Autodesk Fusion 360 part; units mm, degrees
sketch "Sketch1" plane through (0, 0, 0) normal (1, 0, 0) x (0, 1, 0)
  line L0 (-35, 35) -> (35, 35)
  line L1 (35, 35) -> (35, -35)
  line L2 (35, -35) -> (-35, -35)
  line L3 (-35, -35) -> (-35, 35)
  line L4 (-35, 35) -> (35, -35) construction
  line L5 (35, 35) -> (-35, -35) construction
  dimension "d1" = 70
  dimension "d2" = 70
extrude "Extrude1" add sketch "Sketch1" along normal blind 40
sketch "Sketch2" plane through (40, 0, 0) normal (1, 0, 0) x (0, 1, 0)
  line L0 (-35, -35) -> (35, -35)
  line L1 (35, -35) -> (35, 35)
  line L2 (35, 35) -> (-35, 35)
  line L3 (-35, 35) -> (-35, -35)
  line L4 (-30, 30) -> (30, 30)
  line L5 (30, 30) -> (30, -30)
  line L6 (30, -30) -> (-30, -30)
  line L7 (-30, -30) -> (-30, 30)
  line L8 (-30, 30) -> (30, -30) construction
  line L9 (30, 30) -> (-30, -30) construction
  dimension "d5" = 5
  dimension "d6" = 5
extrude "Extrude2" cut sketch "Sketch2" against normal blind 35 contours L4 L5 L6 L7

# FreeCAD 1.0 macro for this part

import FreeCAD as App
import Part
import Sketcher

V = App.Vector


def add_polygon(sketch, points):
    """Adds a closed chain of lines whose ends are joined by coincident constraints."""
    first, n = sketch.GeometryCount, len(points)
    for a, b in zip(points, points[1:] + points[:1]):
        sketch.addGeometry(Part.LineSegment(App.Vector(*a, 0), App.Vector(*b, 0)), False)
    for i in range(n):
        sketch.addConstraint(Sketcher.Constraint("Coincident", first + i, 2, first + (i + 1) % n, 1))

doc = App.newDocument("Part")
body = doc.addObject("PartDesign::Body", "Body")

sketch1 = doc.addObject("Sketcher::SketchObject", "Sketch")
body.addObject(sketch1)
sketch1.AttachmentSupport = (doc.YZ_Plane, [""])
sketch1.MapMode = "FlatFace"
add_polygon(sketch1, [(35, 35), (-35, 35), (-35, -35), (35, -35)])
sketch1.addConstraint([
    Sketcher.Constraint("Horizontal", 0),
    Sketcher.Constraint("Vertical", 1),
    Sketcher.Constraint("Horizontal", 2),
    Sketcher.Constraint("Vertical", 3),
    Sketcher.Constraint("Symmetric", 0, 2, 2, 2, -1, 1),
    Sketcher.Constraint("Equal", 2, 1),
    Sketcher.Constraint("DistanceX", 0, 2, 0, 1, 70.0),
])
pad1 = doc.addObject("PartDesign::Pad", "Pad")
body.addObject(pad1)
pad1.Profile = sketch1
pad1.Length = 40

sketch2 = doc.addObject("Sketcher::SketchObject", "Sketch001")
body.addObject(sketch2)
sketch2.AttachmentSupport = (doc.YZ_Plane, [""])
sketch2.MapMode = "FlatFace"
sketch2.AttachmentOffset = App.Placement(V(0, 0, 40), App.Rotation())
add_polygon(sketch2, [(30, 30), (-30, 30), (-30, -30), (30, -30)])
sketch2.addConstraint([
    Sketcher.Constraint("Horizontal", 0),
    Sketcher.Constraint("Vertical", 1),
    Sketcher.Constraint("Horizontal", 2),
    Sketcher.Constraint("Vertical", 3),
    Sketcher.Constraint("Symmetric", 0, 2, 2, 2, -1, 1),
    Sketcher.Constraint("Equal", 2, 1),
    Sketcher.Constraint("DistanceX", 0, 2, 0, 1, 60.0),
])
pocket1 = doc.addObject("PartDesign::Pocket", "Pocket")
body.addObject(pocket1)
pocket1.Profile = sketch2
pocket1.Length = 35

doc.recompute()
